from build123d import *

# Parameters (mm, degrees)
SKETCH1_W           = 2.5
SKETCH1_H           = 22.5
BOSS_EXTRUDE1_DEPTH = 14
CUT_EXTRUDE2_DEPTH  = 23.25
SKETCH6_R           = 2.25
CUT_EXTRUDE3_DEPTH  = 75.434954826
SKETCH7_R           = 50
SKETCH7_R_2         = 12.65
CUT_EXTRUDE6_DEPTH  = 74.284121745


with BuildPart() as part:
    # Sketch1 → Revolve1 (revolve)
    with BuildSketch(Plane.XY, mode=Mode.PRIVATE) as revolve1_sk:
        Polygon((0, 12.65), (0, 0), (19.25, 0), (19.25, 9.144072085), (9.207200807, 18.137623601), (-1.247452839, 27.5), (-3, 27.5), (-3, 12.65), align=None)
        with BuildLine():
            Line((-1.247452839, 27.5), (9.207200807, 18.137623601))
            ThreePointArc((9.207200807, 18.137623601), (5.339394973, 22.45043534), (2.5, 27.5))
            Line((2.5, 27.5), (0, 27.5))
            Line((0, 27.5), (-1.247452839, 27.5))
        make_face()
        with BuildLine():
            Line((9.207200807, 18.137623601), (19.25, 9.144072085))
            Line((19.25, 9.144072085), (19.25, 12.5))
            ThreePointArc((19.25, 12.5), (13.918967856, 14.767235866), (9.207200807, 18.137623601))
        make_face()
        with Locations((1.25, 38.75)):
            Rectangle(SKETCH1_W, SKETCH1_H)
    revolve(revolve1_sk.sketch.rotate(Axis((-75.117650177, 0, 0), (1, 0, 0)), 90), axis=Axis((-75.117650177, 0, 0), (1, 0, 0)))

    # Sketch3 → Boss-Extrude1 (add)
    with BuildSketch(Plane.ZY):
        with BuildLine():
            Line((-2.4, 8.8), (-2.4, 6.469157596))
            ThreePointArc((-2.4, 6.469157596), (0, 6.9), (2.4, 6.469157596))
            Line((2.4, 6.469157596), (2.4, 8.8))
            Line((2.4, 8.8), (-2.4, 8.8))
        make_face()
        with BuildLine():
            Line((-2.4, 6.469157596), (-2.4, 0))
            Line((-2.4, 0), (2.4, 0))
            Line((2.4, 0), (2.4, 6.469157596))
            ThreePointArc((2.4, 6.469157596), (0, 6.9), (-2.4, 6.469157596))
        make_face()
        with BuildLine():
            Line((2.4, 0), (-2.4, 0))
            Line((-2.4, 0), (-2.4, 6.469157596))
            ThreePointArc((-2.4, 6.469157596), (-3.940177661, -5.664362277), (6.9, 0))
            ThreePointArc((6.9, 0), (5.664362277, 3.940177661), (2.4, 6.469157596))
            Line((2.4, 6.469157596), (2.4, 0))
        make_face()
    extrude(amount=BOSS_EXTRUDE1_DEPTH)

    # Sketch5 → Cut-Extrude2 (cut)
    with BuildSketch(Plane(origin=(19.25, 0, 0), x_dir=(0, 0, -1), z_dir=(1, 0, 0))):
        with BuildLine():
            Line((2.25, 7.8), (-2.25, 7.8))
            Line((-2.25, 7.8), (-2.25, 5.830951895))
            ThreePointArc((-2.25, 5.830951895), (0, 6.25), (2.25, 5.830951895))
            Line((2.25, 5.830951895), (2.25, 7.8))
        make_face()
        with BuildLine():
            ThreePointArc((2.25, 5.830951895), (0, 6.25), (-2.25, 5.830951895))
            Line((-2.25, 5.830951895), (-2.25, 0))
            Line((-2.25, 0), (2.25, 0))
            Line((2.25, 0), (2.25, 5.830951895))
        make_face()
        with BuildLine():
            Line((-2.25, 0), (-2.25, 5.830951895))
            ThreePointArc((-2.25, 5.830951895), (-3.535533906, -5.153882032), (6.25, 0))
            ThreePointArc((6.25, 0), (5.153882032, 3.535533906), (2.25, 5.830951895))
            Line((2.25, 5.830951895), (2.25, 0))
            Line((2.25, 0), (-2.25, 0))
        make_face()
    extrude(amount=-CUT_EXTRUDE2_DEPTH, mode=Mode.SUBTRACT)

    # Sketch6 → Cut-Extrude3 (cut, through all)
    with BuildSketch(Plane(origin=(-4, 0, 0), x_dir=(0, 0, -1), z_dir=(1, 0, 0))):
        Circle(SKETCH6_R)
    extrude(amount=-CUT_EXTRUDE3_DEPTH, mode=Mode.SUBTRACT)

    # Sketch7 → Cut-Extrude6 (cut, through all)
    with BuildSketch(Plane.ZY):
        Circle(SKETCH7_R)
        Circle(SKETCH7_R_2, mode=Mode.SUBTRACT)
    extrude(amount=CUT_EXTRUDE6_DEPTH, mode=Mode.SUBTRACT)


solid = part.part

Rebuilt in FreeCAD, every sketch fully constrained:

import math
import FreeCAD as App
import Part
import Sketcher

V = App.Vector

doc = App.newDocument("Part")
body = doc.addObject("PartDesign::Body", "Body")

sketch1 = body.newObject("Sketcher::SketchObject", "Sketch")
sketch1.AttachmentSupport = (doc.getObject("XY_Plane"), [""])
sketch1.MapMode = "FlatFace"
sketch1.addGeometry(Part.LineSegment(V(0, 12.7, 0), V(0, 0, 0)), False)
sketch1.addGeometry(Part.LineSegment(V(0, 0, 0), V(19.2, 0, 0)), False)
sketch1.addGeometry(Part.LineSegment(V(19.2, 0, 0), V(19.2, 12.5, 0)), False)
sketch1.addGeometry(Part.ArcOfCircle(Part.Circle(V(26.9, 37.9, 0), V(0, 0, 1), 26.5), math.radians(-132), math.radians(-107)), False)
sketch1.addGeometry(Part.ArcOfCircle(Part.Circle(V(26.9, 37.9, 0), V(0, 0, 1), 26.5), math.radians(-157), math.radians(-132)), False)
sketch1.addGeometry(Part.LineSegment(V(2.5, 27.5, 0), V(2.5, 50, 0)), False)
sketch1.addGeometry(Part.LineSegment(V(2.5, 50, 0), V(0, 50, 0)), False)
sketch1.addGeometry(Part.LineSegment(V(0, 50, 0), V(0, 27.5, 0)), False)
sketch1.addGeometry(Part.LineSegment(V(0, 27.5, 0), V(-3, 27.5, 0)), False)
sketch1.addGeometry(Part.LineSegment(V(-3, 27.5, 0), V(-3, 12.7, 0)), False)
sketch1.addGeometry(Part.LineSegment(V(-3, 12.7, 0), V(0, 12.7, 0)), False)
sketch1.addConstraint(Sketcher.Constraint("Coincident", 0, 2, 1, 1))
sketch1.addConstraint(Sketcher.Constraint("Coincident", 1, 2, 2, 1))
sketch1.addConstraint(Sketcher.Constraint("Coincident", 2, 2, 3, 2))
sketch1.addConstraint(Sketcher.Constraint("Tangent", 3, 1, 4, 2))
sketch1.addConstraint(Sketcher.Constraint("Coincident", 4, 1, 5, 1))
sketch1.addConstraint(Sketcher.Constraint("Coincident", 5, 2, 6, 1))
sketch1.addConstraint(Sketcher.Constraint("Coincident", 6, 2, 7, 1))
sketch1.addConstraint(Sketcher.Constraint("Coincident", 7, 2, 8, 1))
sketch1.addConstraint(Sketcher.Constraint("Coincident", 8, 2, 9, 1))
sketch1.addConstraint(Sketcher.Constraint("Coincident", 9, 2, 10, 1))
sketch1.addConstraint(Sketcher.Constraint("Coincident", 10, 2, 0, 1))
sketch1.addConstraint(Sketcher.Constraint("Vertical", 0))
sketch1.addConstraint(Sketcher.Constraint("Horizontal", 1))
sketch1.addConstraint(Sketcher.Constraint("Vertical", 2))
sketch1.addConstraint(Sketcher.Constraint("Vertical", 5))
sketch1.addConstraint(Sketcher.Constraint("Horizontal", 6))
sketch1.addConstraint(Sketcher.Constraint("Vertical", 7))
sketch1.addConstraint(Sketcher.Constraint("Horizontal", 8))
sketch1.addConstraint(Sketcher.Constraint("Vertical", 9))
sketch1.addConstraint(Sketcher.Constraint("Horizontal", 10))
sketch1.addConstraint(Sketcher.Constraint("Coincident", 0, 2, -1, 1))
sketch1.addConstraint(Sketcher.Constraint("Equal", 3, 4))
sketch1.addConstraint(Sketcher.Constraint("PointOnObject", 6, 2, -2))
sketch1.addConstraint(Sketcher.Constraint("Horizontal", 4, 1, 7, 2))
sketch1.addConstraint(Sketcher.Constraint("DistanceX", 8, 2, 8, 1, 3.0))
sketch1.addConstraint(Sketcher.Constraint("DistanceX", 6, 2, 6, 1, 2.5))
sketch1.addConstraint(Sketcher.Constraint("DistanceY", 2, 1, 2, 2, 12.5))
sketch1.addConstraint(Sketcher.Constraint("DistanceY", 5, 1, 5, 2, 22.5))
sketch1.addConstraint(Sketcher.Constraint("DistanceY", -1, 1, 5, 2, 50.0))
sketch1.addConstraint(Sketcher.Constraint("DistanceX", 1, 1, 1, 2, 19.25))
sketch1.addConstraint(Sketcher.Constraint("DistanceY", 0, 2, 0, 1, 12.65))
sketch1.addConstraint(Sketcher.Constraint("Radius", 3, 26.528125))
sketch1.addConstraint(Sketcher.Constraint("DistanceX", -1, 1, 3, 1, 9.207201))
revolution = body.newObject("PartDesign::Revolution", "Revolution")
revolution.Profile = sketch1
revolution.ReferenceAxis = (sketch1, ["H_Axis"])
revolution.Angle = 360

sketch2 = body.newObject("Sketcher::SketchObject", "Sketch001")
sketch2.AttachmentSupport = (doc.getObject("YZ_Plane"), [""])
sketch2.MapMode = "FlatFace"
sketch2.addGeometry(Part.LineSegment(V(6.5, 2.4, 0), V(8.8, 2.4, 0)), False)
sketch2.addGeometry(Part.LineSegment(V(8.8, 2.4, 0), V(8.8, -2.4, 0)), False)
sketch2.addGeometry(Part.LineSegment(V(8.8, -2.4, 0), V(6.5, -2.4, 0)), False)
sketch2.addGeometry(Part.ArcOfCircle(Part.Circle(V(0, 0, 0), V(0, 0, 1), 6.9), math.radians(90), math.radians(340)), False)
sketch2.addGeometry(Part.ArcOfCircle(Part.Circle(V(0, 0, 0), V(0, 0, 1), 6.9), math.radians(20), math.radians(90)), False)
sketch2.addConstraint(Sketcher.Constraint("Coincident", 0, 2, 1, 1))
sketch2.addConstraint(Sketcher.Constraint("Coincident", 1, 2, 2, 1))
sketch2.addConstraint(Sketcher.Constraint("Coincident", 2, 2, 3, 2))
sketch2.addConstraint(Sketcher.Constraint("Tangent", 3, 1, 4, 2))
sketch2.addConstraint(Sketcher.Constraint("Coincident", 4, 1, 0, 1))
sketch2.addConstraint(Sketcher.Constraint("Horizontal", 0))
sketch2.addConstraint(Sketcher.Constraint("Vertical", 1))
sketch2.addConstraint(Sketcher.Constraint("Horizontal", 2))
sketch2.addConstraint(Sketcher.Constraint("Coincident", 3, 3, -1, 1))
sketch2.addConstraint(Sketcher.Constraint("Equal", 3, 4))
sketch2.addConstraint(Sketcher.Constraint("PointOnObject", 3, 1, -2))
sketch2.addConstraint(Sketcher.Constraint("Vertical", 2, 2, 4, 1))
sketch2.addConstraint(Sketcher.Constraint("Radius", 3, 6.9))
sketch2.addConstraint(Sketcher.Constraint("DistanceY", 1, 2, 1, 1, 4.8))
sketch2.addConstraint(Sketcher.Constraint("DistanceX", -1, 1, 0, 2, 8.8))
pad1 = body.newObject("PartDesign::Pad", "Pad")
pad1.Profile = sketch2
pad1.Length = 14
pad1.Reversed = True

sketch3 = body.newObject("Sketcher::SketchObject", "Sketch002")
sketch3.AttachmentSupport = (doc.getObject("YZ_Plane"), [""])
sketch3.MapMode = "FlatFace"
sketch3.AttachmentOffset = App.Placement(V(0, 0, 19.25), App.Rotation())
sketch3.addGeometry(Part.LineSegment(V(7.8, 2.2, 0), V(5.8, 2.2, 0)), False)
sketch3.addGeometry(Part.ArcOfCircle(Part.Circle(V(0, 0, 0), V(0, 0, 1), 6.2), math.radians(21), math.radians(270)), False)
sketch3.addGeometry(Part.ArcOfCircle(Part.Circle(V(0, 0, 0), V(0, 0, 1), 6.2), math.radians(-90), math.radians(-21)), False)
sketch3.addGeometry(Part.LineSegment(V(5.8, -2.2, 0), V(7.8, -2.2, 0)), False)
sketch3.addGeometry(Part.LineSegment(V(7.8, -2.2, 0), V(7.8, 2.2, 0)), False)
sketch3.addConstraint(Sketcher.Constraint("Coincident", 0, 2, 1, 1))
sketch3.addConstraint(Sketcher.Constraint("Tangent", 1, 2, 2, 1))
sketch3.addConstraint(Sketcher.Constraint("Coincident", 2, 2, 3, 1))
sketch3.addConstraint(Sketcher.Constraint("Coincident", 3, 2, 4, 1))
sketch3.addConstraint(Sketcher.Constraint("Coincident", 4, 2, 0, 1))
sketch3.addConstraint(Sketcher.Constraint("Horizontal", 0))
sketch3.addConstraint(Sketcher.Constraint("Horizontal", 3))
sketch3.addConstraint(Sketcher.Constraint("Vertical", 4))
sketch3.addConstraint(Sketcher.Constraint("Coincident", 1, 3, -1, 1))
sketch3.addConstraint(Sketcher.Constraint("Equal", 1, 2))
sketch3.addConstraint(Sketcher.Constraint("PointOnObject", 1, 2, -2))
sketch3.addConstraint(Sketcher.Constraint("Vertical", 0, 2, 2, 2))
sketch3.addConstraint(Sketcher.Constraint("Radius", 1, 6.25))
sketch3.addConstraint(Sketcher.Constraint("DistanceY", 4, 1, 4, 2, 4.5))
sketch3.addConstraint(Sketcher.Constraint("DistanceX", -1, 1, 3, 2, 7.8))
pocket1 = body.newObject("PartDesign::Pocket", "Pocket")
pocket1.Profile = sketch3
pocket1.Length = 23.25

sketch4 = body.newObject("Sketcher::SketchObject", "Sketch003")
sketch4.AttachmentSupport = (doc.getObject("YZ_Plane"), [""])
sketch4.MapMode = "FlatFace"
sketch4.AttachmentOffset = App.Placement(V(0, 0, -4), App.Rotation())
sketch4.addGeometry(Part.Circle(V(0, 0, 0), V(0, 0, 1), 2.2), False)
sketch4.addConstraint(Sketcher.Constraint("Coincident", 0, 3, -1, 1))
sketch4.addConstraint(Sketcher.Constraint("Diameter", 0, 4.5))
pocket2 = body.newObject("PartDesign::Pocket", "Pocket001")
pocket2.Profile = sketch4
pocket2.Type = "ThroughAll"

sketch5 = body.newObject("Sketcher::SketchObject", "Sketch004")
sketch5.AttachmentSupport = (doc.getObject("YZ_Plane"), [""])
sketch5.MapMode = "FlatFace"
sketch5.addGeometry(Part.Circle(V(0, 0, 0), V(0, 0, 1), 50), False)
sketch5.addGeometry(Part.Circle(V(0, 0, 0), V(0, 0, 1), 13), False)
sketch5.addConstraint(Sketcher.Constraint("Coincident", 0, 3, -1, 1))
sketch5.addConstraint(Sketcher.Constraint("Coincident", 1, 3, -1, 1))
sketch5.addConstraint(Sketcher.Constraint("Diameter", 0, 100.0))
sketch5.addConstraint(Sketcher.Constraint("Diameter", 1, 25.3))
pocket3 = body.newObject("PartDesign::Pocket", "Pocket002")
pocket3.Profile = sketch5
pocket3.Type = "ThroughAll"

doc.recompute()
